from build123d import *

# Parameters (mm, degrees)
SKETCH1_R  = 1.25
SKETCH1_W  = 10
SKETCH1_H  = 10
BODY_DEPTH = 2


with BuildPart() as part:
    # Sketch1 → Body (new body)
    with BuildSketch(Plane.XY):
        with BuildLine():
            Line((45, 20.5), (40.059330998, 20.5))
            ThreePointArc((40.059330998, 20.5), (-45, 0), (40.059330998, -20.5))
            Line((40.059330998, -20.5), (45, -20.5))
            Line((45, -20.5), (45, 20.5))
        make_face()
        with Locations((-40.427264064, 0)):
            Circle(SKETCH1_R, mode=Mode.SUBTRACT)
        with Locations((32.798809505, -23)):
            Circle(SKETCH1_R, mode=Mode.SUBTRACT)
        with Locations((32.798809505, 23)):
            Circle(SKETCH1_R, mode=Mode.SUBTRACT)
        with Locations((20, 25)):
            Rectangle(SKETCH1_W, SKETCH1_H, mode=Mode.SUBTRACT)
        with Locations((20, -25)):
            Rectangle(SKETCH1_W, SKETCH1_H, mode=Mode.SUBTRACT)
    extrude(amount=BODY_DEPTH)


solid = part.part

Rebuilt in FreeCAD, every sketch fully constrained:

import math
import FreeCAD as App
import Part
import Sketcher
Q = App.Units.Quantity

doc = App.newDocument("Part")
body = doc.addObject("PartDesign::Body", "Body")

# Sketch on XY plane
sketch1 = doc.addObject("Sketcher::SketchObject", "Sketch")
body.addObject(sketch1)
sketch1.AttachmentSupport = (doc.XY_Plane, [""])
sketch1.MapMode = "FlatFace"
sketch1.addGeometry(Part.LineSegment(App.Vector(45, 20.5, 0), App.Vector(40.1, 20.5, 0)), False)
sketch1.addGeometry(Part.ArcOfCircle(Part.Circle(App.Vector(0, 0, 0), App.Vector(0, 0, 1), 45), math.radians(27), math.radians(333)), False)
sketch1.addGeometry(Part.LineSegment(App.Vector(40.1, -20.5, 0), App.Vector(45, -20.5, 0)), False)
sketch1.addGeometry(Part.LineSegment(App.Vector(45, -20.5, 0), App.Vector(45, 20.5, 0)), False)
sketch1.addGeometry(Part.LineSegment(App.Vector(25, -30, 0), App.Vector(15, -30, 0)), False)
sketch1.addGeometry(Part.LineSegment(App.Vector(15, -30, 0), App.Vector(15, -20, 0)), False)
sketch1.addGeometry(Part.LineSegment(App.Vector(15, -20, 0), App.Vector(25, -20, 0)), False)
sketch1.addGeometry(Part.LineSegment(App.Vector(25, -20, 0), App.Vector(25, -30, 0)), False)
sketch1.addGeometry(Part.Circle(App.Vector(32.8, -23, 0), App.Vector(0, 0, 1), 1.2), False)
sketch1.addGeometry(Part.Circle(App.Vector(-40.4, 0, 0), App.Vector(0, 0, 1), 1.2), False)
sketch1.addGeometry(Part.LineSegment(App.Vector(25, 20, 0), App.Vector(15, 20, 0)), False)
sketch1.addGeometry(Part.LineSegment(App.Vector(15, 20, 0), App.Vector(15, 30, 0)), False)
sketch1.addGeometry(Part.LineSegment(App.Vector(15, 30, 0), App.Vector(25, 30, 0)), False)
sketch1.addGeometry(Part.LineSegment(App.Vector(25, 30, 0), App.Vector(25, 20, 0)), False)
sketch1.addGeometry(Part.Circle(App.Vector(32.8, 23, 0), App.Vector(0, 0, 1), 1.2), False)
sketch1.addConstraint(Sketcher.Constraint("Coincident", 0, 2, 1, 1))
sketch1.addConstraint(Sketcher.Constraint("Coincident", 1, 2, 2, 1))
sketch1.addConstraint(Sketcher.Constraint("Coincident", 2, 2, 3, 1))
sketch1.addConstraint(Sketcher.Constraint("Coincident", 3, 2, 0, 1))
sketch1.addConstraint(Sketcher.Constraint("Coincident", 4, 2, 5, 1))
sketch1.addConstraint(Sketcher.Constraint("Coincident", 5, 2, 6, 1))
sketch1.addConstraint(Sketcher.Constraint("Coincident", 6, 2, 7, 1))
sketch1.addConstraint(Sketcher.Constraint("Coincident", 7, 2, 4, 1))
sketch1.addConstraint(Sketcher.Constraint("Coincident", 10, 2, 11, 1))
sketch1.addConstraint(Sketcher.Constraint("Coincident", 11, 2, 12, 1))
sketch1.addConstraint(Sketcher.Constraint("Coincident", 12, 2, 13, 1))
sketch1.addConstraint(Sketcher.Constraint("Coincident", 13, 2, 10, 1))
sketch1.addConstraint(Sketcher.Constraint("Horizontal", 0))
sketch1.addConstraint(Sketcher.Constraint("Horizontal", 2))
sketch1.addConstraint(Sketcher.Constraint("Vertical", 3))
sketch1.addConstraint(Sketcher.Constraint("Horizontal", 4))
sketch1.addConstraint(Sketcher.Constraint("Vertical", 5))
sketch1.addConstraint(Sketcher.Constraint("Horizontal", 6))
sketch1.addConstraint(Sketcher.Constraint("Vertical", 7))
sketch1.addConstraint(Sketcher.Constraint("Horizontal", 10))
sketch1.addConstraint(Sketcher.Constraint("Vertical", 11))
sketch1.addConstraint(Sketcher.Constraint("Horizontal", 12))
sketch1.addConstraint(Sketcher.Constraint("Vertical", 13))
sketch1.addConstraint(Sketcher.Constraint("Coincident", 1, 3, -1, 1))
sketch1.addConstraint(Sketcher.Constraint("Equal", 8, 9))
sketch1.addConstraint(Sketcher.Constraint("Equal", 9, 14))
sketch1.addConstraint(Sketcher.Constraint("Symmetric", 8, 3, 14, 3, -1))
sketch1.addConstraint(Sketcher.Constraint("Symmetric", 5, 2, 10, 2, -1))
sketch1.addConstraint(Sketcher.Constraint("Symmetric", 7, 2, 12, 2, -1))
sketch1.addConstraint(Sketcher.Constraint("PointOnObject", 9, 3, -1))
sketch1.addConstraint(Sketcher.Constraint("Vertical", 0, 2, 1, 2))
sketch1.addConstraint(Sketcher.Constraint("Equal", 12, 5))
sketch1.addConstraint(Sketcher.Constraint("Radius", 1, Q("45 mm")))
sketch1.addConstraint(Sketcher.Constraint("Diameter", 8, Q("2.5 mm")))
sketch1.addConstraint(Sketcher.Constraint("DistanceX", 4, 2, 4, 1, Q("10 mm")))
sketch1.addConstraint(Sketcher.Constraint("DistanceY", 3, 1, 3, 2, Q("41 mm")))
sketch1.addConstraint(Sketcher.Constraint("DistanceY", 8, 3, -1, 1, Q("23 mm")))
sketch1.addConstraint(Sketcher.Constraint("DistanceX", -1, 1, 2, 2, Q("45 mm")))
sketch1.addConstraint(Sketcher.Constraint("DistanceX", -1, 1, 4, 2, Q("15 mm")))
sketch1.addConstraint(Sketcher.Constraint("DistanceY", 4, 2, -1, 1, Q("30 mm")))
sketch1.addConstraint(Sketcher.Constraint("DistanceX", -1, 1, 8, 3, Q("32.79881 mm")))
sketch1.addConstraint(Sketcher.Constraint("DistanceX", 9, 3, -1, 1, Q("40.427264 mm")))
pad1 = doc.addObject("PartDesign::Pad", "Pad")
body.addObject(pad1)
pad1.Profile = sketch1
pad1.Length = 2

doc.recompute()
